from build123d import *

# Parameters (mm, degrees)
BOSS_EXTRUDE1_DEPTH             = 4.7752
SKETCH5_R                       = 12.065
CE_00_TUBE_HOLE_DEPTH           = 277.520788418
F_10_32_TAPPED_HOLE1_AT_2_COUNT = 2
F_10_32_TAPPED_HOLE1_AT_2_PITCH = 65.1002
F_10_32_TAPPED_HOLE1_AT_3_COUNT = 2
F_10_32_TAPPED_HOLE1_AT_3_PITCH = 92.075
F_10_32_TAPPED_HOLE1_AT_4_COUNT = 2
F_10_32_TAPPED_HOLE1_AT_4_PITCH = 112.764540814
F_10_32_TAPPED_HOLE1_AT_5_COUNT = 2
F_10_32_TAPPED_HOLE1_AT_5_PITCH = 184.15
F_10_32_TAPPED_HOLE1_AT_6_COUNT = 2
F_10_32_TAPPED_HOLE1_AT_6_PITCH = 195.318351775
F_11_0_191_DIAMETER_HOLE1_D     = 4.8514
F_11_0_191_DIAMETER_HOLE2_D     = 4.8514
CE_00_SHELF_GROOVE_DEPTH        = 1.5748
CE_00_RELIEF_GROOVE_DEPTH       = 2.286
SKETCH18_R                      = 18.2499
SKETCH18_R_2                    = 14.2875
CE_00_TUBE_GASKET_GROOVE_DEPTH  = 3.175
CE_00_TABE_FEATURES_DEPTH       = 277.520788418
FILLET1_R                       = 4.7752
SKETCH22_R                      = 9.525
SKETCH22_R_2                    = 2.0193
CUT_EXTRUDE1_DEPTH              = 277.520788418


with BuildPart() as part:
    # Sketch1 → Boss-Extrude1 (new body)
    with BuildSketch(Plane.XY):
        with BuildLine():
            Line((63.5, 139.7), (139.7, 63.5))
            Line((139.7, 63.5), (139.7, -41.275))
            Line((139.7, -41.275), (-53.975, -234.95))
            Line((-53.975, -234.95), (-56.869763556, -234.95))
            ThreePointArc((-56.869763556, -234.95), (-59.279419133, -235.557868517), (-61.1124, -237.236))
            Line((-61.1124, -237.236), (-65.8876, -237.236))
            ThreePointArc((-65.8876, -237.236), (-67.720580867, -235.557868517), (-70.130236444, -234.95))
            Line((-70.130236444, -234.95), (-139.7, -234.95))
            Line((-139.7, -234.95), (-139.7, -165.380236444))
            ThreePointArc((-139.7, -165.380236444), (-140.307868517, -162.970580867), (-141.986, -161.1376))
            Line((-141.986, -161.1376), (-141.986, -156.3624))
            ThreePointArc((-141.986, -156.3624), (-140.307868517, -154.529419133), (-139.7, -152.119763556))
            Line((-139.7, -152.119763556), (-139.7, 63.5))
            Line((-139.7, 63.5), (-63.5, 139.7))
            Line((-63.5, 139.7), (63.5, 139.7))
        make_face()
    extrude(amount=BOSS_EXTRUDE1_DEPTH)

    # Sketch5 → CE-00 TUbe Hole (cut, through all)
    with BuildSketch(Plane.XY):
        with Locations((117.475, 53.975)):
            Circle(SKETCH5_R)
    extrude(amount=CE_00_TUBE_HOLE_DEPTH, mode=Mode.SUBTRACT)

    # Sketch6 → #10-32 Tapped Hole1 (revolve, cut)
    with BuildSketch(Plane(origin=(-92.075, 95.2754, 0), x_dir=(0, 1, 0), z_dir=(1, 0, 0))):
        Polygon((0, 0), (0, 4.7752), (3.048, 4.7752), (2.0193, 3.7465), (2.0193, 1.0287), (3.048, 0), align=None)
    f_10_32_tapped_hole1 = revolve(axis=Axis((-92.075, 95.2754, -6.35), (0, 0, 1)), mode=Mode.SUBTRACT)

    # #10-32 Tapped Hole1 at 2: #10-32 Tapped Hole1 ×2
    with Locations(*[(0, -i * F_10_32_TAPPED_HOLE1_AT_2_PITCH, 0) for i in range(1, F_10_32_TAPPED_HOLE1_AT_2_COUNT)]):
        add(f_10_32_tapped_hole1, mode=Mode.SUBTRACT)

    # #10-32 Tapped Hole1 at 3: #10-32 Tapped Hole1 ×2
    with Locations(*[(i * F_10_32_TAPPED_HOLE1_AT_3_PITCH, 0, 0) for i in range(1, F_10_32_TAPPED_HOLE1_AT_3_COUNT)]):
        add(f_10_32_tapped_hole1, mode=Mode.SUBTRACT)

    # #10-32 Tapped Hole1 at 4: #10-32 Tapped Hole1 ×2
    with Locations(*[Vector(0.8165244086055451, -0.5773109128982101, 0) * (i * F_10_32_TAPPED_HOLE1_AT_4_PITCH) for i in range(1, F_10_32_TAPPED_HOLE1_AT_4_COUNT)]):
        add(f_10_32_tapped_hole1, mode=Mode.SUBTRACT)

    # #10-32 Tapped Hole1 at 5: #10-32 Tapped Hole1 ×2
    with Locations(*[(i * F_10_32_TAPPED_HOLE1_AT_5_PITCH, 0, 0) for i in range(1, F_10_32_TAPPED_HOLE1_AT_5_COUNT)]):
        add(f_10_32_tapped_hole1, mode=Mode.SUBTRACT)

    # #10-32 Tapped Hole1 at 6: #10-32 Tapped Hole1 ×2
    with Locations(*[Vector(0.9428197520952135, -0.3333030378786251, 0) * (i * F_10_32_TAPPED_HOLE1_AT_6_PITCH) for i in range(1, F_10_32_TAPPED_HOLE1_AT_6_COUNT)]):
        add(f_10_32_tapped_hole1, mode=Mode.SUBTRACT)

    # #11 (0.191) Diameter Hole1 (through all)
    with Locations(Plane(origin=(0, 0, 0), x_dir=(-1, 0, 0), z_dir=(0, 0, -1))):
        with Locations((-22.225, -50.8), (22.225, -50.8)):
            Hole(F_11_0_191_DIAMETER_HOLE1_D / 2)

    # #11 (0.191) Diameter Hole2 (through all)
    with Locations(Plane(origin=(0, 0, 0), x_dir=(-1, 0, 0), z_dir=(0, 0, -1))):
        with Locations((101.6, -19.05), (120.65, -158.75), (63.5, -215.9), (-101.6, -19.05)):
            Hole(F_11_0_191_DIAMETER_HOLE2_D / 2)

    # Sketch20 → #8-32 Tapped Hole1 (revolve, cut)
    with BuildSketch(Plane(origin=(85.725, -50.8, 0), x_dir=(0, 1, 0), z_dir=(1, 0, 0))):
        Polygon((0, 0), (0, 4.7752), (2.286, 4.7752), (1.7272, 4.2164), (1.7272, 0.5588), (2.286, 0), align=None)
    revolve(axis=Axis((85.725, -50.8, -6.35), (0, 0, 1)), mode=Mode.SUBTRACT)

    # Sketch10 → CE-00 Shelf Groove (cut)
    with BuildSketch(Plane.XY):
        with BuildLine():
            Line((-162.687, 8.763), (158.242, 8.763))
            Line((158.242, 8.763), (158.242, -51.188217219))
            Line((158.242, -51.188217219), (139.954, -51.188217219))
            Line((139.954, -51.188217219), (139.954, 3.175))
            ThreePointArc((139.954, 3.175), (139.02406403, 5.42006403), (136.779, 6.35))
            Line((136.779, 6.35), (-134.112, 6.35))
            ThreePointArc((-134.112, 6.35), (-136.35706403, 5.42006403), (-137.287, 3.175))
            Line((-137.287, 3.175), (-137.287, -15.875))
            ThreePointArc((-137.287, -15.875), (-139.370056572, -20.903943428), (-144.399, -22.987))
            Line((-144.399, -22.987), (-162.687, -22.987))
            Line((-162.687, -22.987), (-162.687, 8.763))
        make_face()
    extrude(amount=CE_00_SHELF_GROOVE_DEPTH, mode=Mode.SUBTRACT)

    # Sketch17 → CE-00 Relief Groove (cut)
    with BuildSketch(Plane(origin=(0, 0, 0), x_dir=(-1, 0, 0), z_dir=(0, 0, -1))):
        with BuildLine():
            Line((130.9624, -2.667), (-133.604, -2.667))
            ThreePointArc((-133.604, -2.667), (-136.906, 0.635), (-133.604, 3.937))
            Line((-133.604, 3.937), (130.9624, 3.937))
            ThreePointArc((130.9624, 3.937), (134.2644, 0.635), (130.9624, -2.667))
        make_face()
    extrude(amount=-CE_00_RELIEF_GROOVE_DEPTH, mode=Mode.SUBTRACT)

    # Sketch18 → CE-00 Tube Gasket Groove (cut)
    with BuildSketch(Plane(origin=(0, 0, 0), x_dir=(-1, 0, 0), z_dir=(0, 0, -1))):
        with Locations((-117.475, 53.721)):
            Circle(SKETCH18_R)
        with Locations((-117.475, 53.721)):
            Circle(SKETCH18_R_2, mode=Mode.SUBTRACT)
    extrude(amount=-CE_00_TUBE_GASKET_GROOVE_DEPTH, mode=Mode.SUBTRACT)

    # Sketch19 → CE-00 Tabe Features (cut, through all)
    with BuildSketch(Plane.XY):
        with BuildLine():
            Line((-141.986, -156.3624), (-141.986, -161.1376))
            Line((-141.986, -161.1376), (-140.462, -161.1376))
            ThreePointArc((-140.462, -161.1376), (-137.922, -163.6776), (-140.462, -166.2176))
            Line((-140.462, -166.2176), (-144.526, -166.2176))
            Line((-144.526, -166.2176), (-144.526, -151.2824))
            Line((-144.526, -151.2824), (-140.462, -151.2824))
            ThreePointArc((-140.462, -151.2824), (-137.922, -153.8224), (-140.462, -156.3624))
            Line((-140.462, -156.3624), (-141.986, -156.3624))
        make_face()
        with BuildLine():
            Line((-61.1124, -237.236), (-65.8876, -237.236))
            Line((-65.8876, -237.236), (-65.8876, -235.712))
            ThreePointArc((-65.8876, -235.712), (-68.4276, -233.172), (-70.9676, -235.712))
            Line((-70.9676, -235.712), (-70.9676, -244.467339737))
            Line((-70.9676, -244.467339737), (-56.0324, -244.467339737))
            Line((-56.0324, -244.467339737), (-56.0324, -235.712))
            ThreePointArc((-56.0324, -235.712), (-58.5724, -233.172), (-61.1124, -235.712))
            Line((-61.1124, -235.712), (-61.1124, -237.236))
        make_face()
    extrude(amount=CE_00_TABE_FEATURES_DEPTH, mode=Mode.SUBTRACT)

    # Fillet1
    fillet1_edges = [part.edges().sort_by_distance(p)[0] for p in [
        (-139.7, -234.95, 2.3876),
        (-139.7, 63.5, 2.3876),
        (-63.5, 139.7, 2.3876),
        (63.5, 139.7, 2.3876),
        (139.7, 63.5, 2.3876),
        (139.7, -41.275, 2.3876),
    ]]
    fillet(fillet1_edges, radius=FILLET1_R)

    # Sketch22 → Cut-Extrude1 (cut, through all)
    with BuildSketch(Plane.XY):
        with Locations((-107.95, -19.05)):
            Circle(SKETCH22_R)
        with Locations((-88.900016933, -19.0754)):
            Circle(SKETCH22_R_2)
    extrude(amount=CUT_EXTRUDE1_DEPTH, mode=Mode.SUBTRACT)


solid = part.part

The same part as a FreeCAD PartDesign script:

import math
import FreeCAD as App
import Part
import Sketcher

V = App.Vector
Q = App.Units.Quantity


def edges_at(feature, points):
    """Names of the edges that pass closest to the given points."""
    edges = feature.Shape.Edges
    near = lambda p: min(range(len(edges)), key=lambda i: edges[i].distToShape(Part.Vertex(*p))[0])
    return sorted({f"Edge{near(p) + 1}" for p in points})


def add_polygon(sketch, points):
    """Adds a closed chain of lines whose ends are joined by coincident constraints."""
    first, n = sketch.GeometryCount, len(points)
    for a, b in zip(points, points[1:] + points[:1]):
        sketch.addGeometry(Part.LineSegment(App.Vector(*a, 0), App.Vector(*b, 0)), False)
    for i in range(n):
        sketch.addConstraint(Sketcher.Constraint("Coincident", first + i, 2, first + (i + 1) % n, 1))

doc = App.newDocument("Part")
body = doc.addObject("PartDesign::Body", "Body")

sketch1 = body.newObject("Sketcher::SketchObject", "Sketch")
sketch1.AttachmentSupport = (doc.getObject("XY_Plane"), [""])
sketch1.MapMode = "FlatFace"
sketch1.addGeometry(Part.LineSegment(V(139.7, 63.5, 0), V(63.5, 139.7, 0)), False)
sketch1.addGeometry(Part.LineSegment(V(63.5, 139.7, 0), V(-63.5, 139.7, 0)), False)
sketch1.addGeometry(Part.LineSegment(V(-63.5, 139.7, 0), V(-139.7, 63.5, 0)), False)
sketch1.addGeometry(Part.LineSegment(V(-139.7, 63.5, 0), V(-139.7, -152.119764, 0)), False)
sketch1.addGeometry(Part.ArcOfCircle(Part.Circle(V(-144.78, -152.119764, 0), V(0, 0, 1), 5.08), math.radians(-56.632987), math.radians(0)), False)
sketch1.addGeometry(Part.LineSegment(V(-141.986, -156.3624, 0), V(-141.986, -161.1376, 0)), False)
sketch1.addGeometry(Part.ArcOfCircle(Part.Circle(V(-144.78, -165.380236, 0), V(0, 0, 1), 5.08), math.radians(0), math.radians(56.632987)), False)
sketch1.addGeometry(Part.LineSegment(V(-139.7, -165.380236, 0), V(-139.7, -234.95, 0)), False)
sketch1.addGeometry(Part.LineSegment(V(-139.7, -234.95, 0), V(-70.130236, -234.95, 0)), False)
sketch1.addGeometry(Part.ArcOfCircle(Part.Circle(V(-70.130236, -240.03, 0), V(0, 0, 1), 5.08), math.radians(33.367013), math.radians(90)), False)
sketch1.addGeometry(Part.LineSegment(V(-65.8876, -237.236, 0), V(-61.1124, -237.236, 0)), False)
sketch1.addGeometry(Part.ArcOfCircle(Part.Circle(V(-56.869764, -240.03, 0), V(0, 0, 1), 5.08), math.radians(90), math.radians(146.632987)), False)
sketch1.addGeometry(Part.LineSegment(V(-56.869764, -234.95, 0), V(-53.975, -234.95, 0)), False)
sketch1.addGeometry(Part.LineSegment(V(-53.975, -234.95, 0), V(139.7, -41.275, 0)), False)
sketch1.addGeometry(Part.LineSegment(V(139.7, -41.275, 0), V(139.7, 63.5, 0)), False)
sketch1.addConstraint(Sketcher.Constraint("Coincident", 0, 2, 1, 1))
sketch1.addConstraint(Sketcher.Constraint("Coincident", 1, 2, 2, 1))
sketch1.addConstraint(Sketcher.Constraint("Coincident", 2, 2, 3, 1))
sketch1.addConstraint(Sketcher.Constraint("Tangent", 3, 2, 4, 2))
sketch1.addConstraint(Sketcher.Constraint("Coincident", 4, 1, 5, 1))
sketch1.addConstraint(Sketcher.Constraint("Coincident", 5, 2, 6, 2))
sketch1.addConstraint(Sketcher.Constraint("Tangent", 6, 1, 7, 1))
sketch1.addConstraint(Sketcher.Constraint("Coincident", 7, 2, 8, 1))
sketch1.addConstraint(Sketcher.Constraint("Tangent", 8, 2, 9, 2))
sketch1.addConstraint(Sketcher.Constraint("Coincident", 9, 1, 10, 1))
sketch1.addConstraint(Sketcher.Constraint("Coincident", 10, 2, 11, 2))
sketch1.addConstraint(Sketcher.Constraint("Tangent", 11, 1, 12, 1))
sketch1.addConstraint(Sketcher.Constraint("Coincident", 12, 2, 13, 1))
sketch1.addConstraint(Sketcher.Constraint("Coincident", 13, 2, 14, 1))
sketch1.addConstraint(Sketcher.Constraint("Coincident", 14, 2, 0, 1))
sketch1.addConstraint(Sketcher.Constraint("Horizontal", 1))
sketch1.addConstraint(Sketcher.Constraint("Vertical", 3))
sketch1.addConstraint(Sketcher.Constraint("Vertical", 5))
sketch1.addConstraint(Sketcher.Constraint("Vertical", 7))
sketch1.addConstraint(Sketcher.Constraint("Horizontal", 8))
sketch1.addConstraint(Sketcher.Constraint("Horizontal", 10))
sketch1.addConstraint(Sketcher.Constraint("Horizontal", 12))
sketch1.addConstraint(Sketcher.Constraint("Vertical", 14))
sketch1.addConstraint(Sketcher.Constraint("Equal", 4, 6))
sketch1.addConstraint(Sketcher.Constraint("Equal", 6, 9))
sketch1.addConstraint(Sketcher.Constraint("Equal", 9, 11))
sketch1.addConstraint(Sketcher.Constraint("Symmetric", 2, 2, 14, 2, -2))
sketch1.addConstraint(Sketcher.Constraint("Perpendicular", 0, 2))
sketch1.addConstraint(Sketcher.Constraint("Parallel", 2, 13))
sketch1.addConstraint(Sketcher.Constraint("Horizontal", 9, 3, 11, 3))
sketch1.addConstraint(Sketcher.Constraint("Vertical", 4, 3, 6, 3))
sketch1.addConstraint(Sketcher.Constraint("Equal", 10, 5))
sketch1.addConstraint(Sketcher.Constraint("Equal", 8, 7))
sketch1.addConstraint(Sketcher.Constraint("Equal", 0, 2))
sketch1.addConstraint(Sketcher.Constraint("Radius", 4, Q("0.2 in")))
sketch1.addConstraint(Sketcher.Constraint("DistanceX", 1, 2, 1, 1, Q("5 in")))
sketch1.addConstraint(Sketcher.Constraint("DistanceX", 2, 2, 1, 2, Q("3 in")))
sketch1.addConstraint(Sketcher.Constraint("DistanceY", -1, 1, 0, 2, Q("5.5 in")))
sketch1.addConstraint(Sketcher.Constraint("DistanceX", 10, 1, 10, 2, Q("0.188 in")))
sketch1.addConstraint(Sketcher.Constraint("DistanceY", 14, 1, 14, 2, Q("4.125 in")))
sketch1.addConstraint(Sketcher.Constraint("DistanceY", 9, 3, -1, 1, Q("9.45 in")))
sketch1.addConstraint(Sketcher.Constraint("DistanceX", 4, 1, -1, 1, Q("5.59 in")))
sketch1.addConstraint(Sketcher.Constraint("DistanceY", 9, 1, -1, 1, Q("9.34 in")))
sketch1.addConstraint(Sketcher.Constraint("DistanceY", 4, 1, -1, 1, Q("6.156 in")))
pad1 = body.newObject("PartDesign::Pad", "Pad")
pad1.Profile = sketch1
pad1.Length = Q("0.188 in")

sketch2 = body.newObject("Sketcher::SketchObject", "Sketch001")
sketch2.AttachmentSupport = (doc.getObject("XY_Plane"), [""])
sketch2.MapMode = "FlatFace"
sketch2.addGeometry(Part.Circle(V(117.475, 53.975, 0), V(0, 0, 1), 12.065), False)
sketch2.addConstraint(Sketcher.Constraint("Diameter", 0, Q("0.95 in")))
sketch2.addConstraint(Sketcher.Constraint("DistanceX", -1, 1, 0, 3, Q("4.625 in")))
sketch2.addConstraint(Sketcher.Constraint("DistanceY", -1, 1, 0, 3, Q("2.125 in")))
pocket1 = body.newObject("PartDesign::Pocket", "Pocket")
pocket1.Profile = sketch2
pocket1.Type = "ThroughAll"
pocket1.Reversed = True

sketch3 = body.newObject("Sketcher::SketchObject", "Sketch002")
sketch3.AttachmentSupport = (doc.getObject("YZ_Plane"), [""])
sketch3.MapMode = "FlatFace"
sketch3.AttachmentOffset = App.Placement(V(0, 0, -3.625 * 25.4), App.Rotation())
add_polygon(sketch3, [(95.2754, 4.7752), (95.2754, 0), (98.3234, 0), (97.2947, 1.0287), (97.2947, 3.7465), (98.3234, 4.7752)])
sketch3.addGeometry(Part.LineSegment(V(95.2754, 0, 0), V(95.2754, 4.7752, 0)), True)
sketch3.addConstraint(Sketcher.Constraint("Vertical", 0))
sketch3.addConstraint(Sketcher.Constraint("Horizontal", 1))
sketch3.addConstraint(Sketcher.Constraint("Vertical", 3))
sketch3.addConstraint(Sketcher.Constraint("Horizontal", 5))
sketch3.addConstraint(Sketcher.Constraint("Vertical", 6))
sketch3.addConstraint(Sketcher.Constraint("Coincident", 6, 1, 0, 2))
sketch3.addConstraint(Sketcher.Constraint("PointOnObject", 0, 2, -1))
sketch3.addConstraint(Sketcher.Constraint("Perpendicular", 2, 4))
sketch3.addConstraint(Sketcher.Constraint("Horizontal", 4, 2, 6, 2))
sketch3.addConstraint(Sketcher.Constraint("Vertical", 1, 2, 4, 2))
sketch3.addConstraint(Sketcher.Constraint("Equal", 2, 4))
sketch3.addConstraint(Sketcher.Constraint("DistanceX", 1, 1, 1, 2, Q("0.12 in")))
sketch3.addConstraint(Sketcher.Constraint("DistanceY", 0, 2, 0, 1, Q("0.188 in")))
sketch3.addConstraint(Sketcher.Constraint("DistanceY", 3, 1, 3, 2, Q("0.107 in")))
sketch3.addConstraint(Sketcher.Constraint("DistanceX", -1, 1, 0, 2, Q("3.751 in")))
groove = body.newObject("PartDesign::Groove", "Groove")
groove.Profile = sketch3
groove.ReferenceAxis = (sketch3, ["Axis0"])
groove.Angle = 360
doc.recompute()

linearpattern = body.newObject("PartDesign::LinearPattern", "LinearPattern")
linearpattern.Originals = [groove]
linearpattern.Direction = (doc.getObject("Y_Axis"), [""])
linearpattern.Mode = "offset"
linearpattern.Offset = Q("2.563 in")
linearpattern.Occurrences = 2
linearpattern.Reversed = True
body.Tip = linearpattern
doc.recompute()

linearpattern2 = body.newObject("PartDesign::LinearPattern", "LinearPattern001")
linearpattern2.Originals = [groove]
linearpattern2.Direction = (doc.getObject("X_Axis"), [""])
linearpattern2.Mode = "offset"
linearpattern2.Offset = Q("3.625 in")
linearpattern2.Occurrences = 2
body.Tip = linearpattern2
doc.recompute()

datumline = body.newObject("PartDesign::Line", "DatumLine")
datumline.Placement = App.Placement(V(0, 0, 0), App.Rotation(V(0, 0, 1), V(0.816524409, -0.577310913, 0)))
linearpattern3 = body.newObject("PartDesign::LinearPattern", "LinearPattern002")
linearpattern3.Originals = [groove]
linearpattern3.Direction = (datumline, [""])
linearpattern3.Mode = "offset"
linearpattern3.Offset = 112.764541
linearpattern3.Occurrences = 2
body.Tip = linearpattern3
doc.recompute()

linearpattern4 = body.newObject("PartDesign::LinearPattern", "LinearPattern003")
linearpattern4.Originals = [groove]
linearpattern4.Direction = (doc.getObject("X_Axis"), [""])
linearpattern4.Mode = "offset"
linearpattern4.Offset = Q("7.25 in")
linearpattern4.Occurrences = 2
body.Tip = linearpattern4
doc.recompute()

datumline2 = body.newObject("PartDesign::Line", "DatumLine001")
datumline2.Placement = App.Placement(V(0, 0, 0), App.Rotation(V(0, 0, 1), V(0.942819752, -0.333303038, 0)))
linearpattern5 = body.newObject("PartDesign::LinearPattern", "LinearPattern004")
linearpattern5.Originals = [groove]
linearpattern5.Direction = (datumline2, [""])
linearpattern5.Mode = "offset"
linearpattern5.Offset = 195.318352
linearpattern5.Occurrences = 2
body.Tip = linearpattern5

sketch4 = body.newObject("Sketcher::SketchObject", "Sketch003")
sketch4.AttachmentSupport = (doc.getObject("XY_Plane"), [""])
sketch4.MapMode = "FlatFace"
sketch4.addGeometry(Part.Circle(V(22.225, -50.8, 0), V(0, 0, 1), 2.4257), False)
sketch4.addGeometry(Part.Circle(V(-22.225, -50.8, 0), V(0, 0, 1), 2.4257), False)
sketch4.addConstraint(Sketcher.Constraint("Equal", 0, 1))
sketch4.addConstraint(Sketcher.Constraint("Symmetric", 0, 3, 1, 3, -2))
sketch4.addConstraint(Sketcher.Constraint("Diameter", 0, Q("0.191 in")))
sketch4.addConstraint(Sketcher.Constraint("DistanceY", 0, 3, -1, 1, Q("2 in")))
sketch4.addConstraint(Sketcher.Constraint("DistanceX", 1, 3, 0, 3, Q("1.75 in")))
doc.recompute()
hole = body.newObject("PartDesign::Hole", "Hole")
hole.Profile = sketch4
hole.ThreadType = "None"
hole.Diameter = Q("0.191 in")
hole.DepthType = "ThroughAll"
hole.Reversed = True

sketch5 = body.newObject("Sketcher::SketchObject", "Sketch004")
sketch5.AttachmentSupport = (doc.getObject("XY_Plane"), [""])
sketch5.MapMode = "FlatFace"
sketch5.addGeometry(Part.Circle(V(-101.6, -19.05, 0), V(0, 0, 1), 2.4257), False)
sketch5.addGeometry(Part.Circle(V(-120.65, -158.75, 0), V(0, 0, 1), 2.4257), False)
sketch5.addGeometry(Part.Circle(V(-63.5, -215.9, 0), V(0, 0, 1), 2.4257), False)
sketch5.addGeometry(Part.Circle(V(101.6, -19.05, 0), V(0, 0, 1), 2.4257), False)
sketch5.addConstraint(Sketcher.Constraint("Equal", 0, 1))
sketch5.addConstraint(Sketcher.Constraint("Equal", 1, 2))
sketch5.addConstraint(Sketcher.Constraint("Equal", 2, 3))
sketch5.addConstraint(Sketcher.Constraint("Symmetric", 0, 3, 3, 3, -2))
sketch5.addConstraint(Sketcher.Constraint("Diameter", 0, Q("0.191 in")))
sketch5.addConstraint(Sketcher.Constraint("DistanceX", 0, 3, -1, 1, Q("4 in")))
sketch5.addConstraint(Sketcher.Constraint("DistanceX", 2, 3, -1, 1, Q("2.5 in")))
sketch5.addConstraint(Sketcher.Constraint("DistanceY", 2, 3, -1, 1, Q("8.5 in")))
sketch5.addConstraint(Sketcher.Constraint("DistanceY", 1, 3, 0, 3, Q("5.5 in")))
sketch5.addConstraint(Sketcher.Constraint("DistanceY", 0, 3, -1, 1, Q("0.75 in")))
sketch5.addConstraint(Sketcher.Constraint("DistanceX", 1, 3, -1, 1, Q("4.75 in")))
doc.recompute()
hole2 = body.newObject("PartDesign::Hole", "Hole001")
hole2.Profile = sketch5
hole2.ThreadType = "None"
hole2.Diameter = Q("0.191 in")
hole2.DepthType = "ThroughAll"
hole2.Reversed = True

sketch6 = body.newObject("Sketcher::SketchObject", "Sketch005")
sketch6.AttachmentSupport = (doc.getObject("YZ_Plane"), [""])
sketch6.MapMode = "FlatFace"
sketch6.AttachmentOffset = App.Placement(V(0, 0, 3.375 * 25.4), App.Rotation())
add_polygon(sketch6, [(-50.8, 4.7752), (-50.8, 0), (-48.514, 0), (-49.0728, 0.5588), (-49.0728, 4.2164), (-48.514, 4.7752)])
sketch6.addGeometry(Part.LineSegment(V(-50.8, 0, 0), V(-50.8, 4.7752, 0)), True)
sketch6.addConstraint(Sketcher.Constraint("Vertical", 0))
sketch6.addConstraint(Sketcher.Constraint("Horizontal", 1))
sketch6.addConstraint(Sketcher.Constraint("Vertical", 3))
sketch6.addConstraint(Sketcher.Constraint("Horizontal", 5))
sketch6.addConstraint(Sketcher.Constraint("Vertical", 6))
sketch6.addConstraint(Sketcher.Constraint("Coincident", 6, 1, 0, 2))
sketch6.addConstraint(Sketcher.Constraint("PointOnObject", 0, 2, -1))
sketch6.addConstraint(Sketcher.Constraint("Perpendicular", 2, 4))
sketch6.addConstraint(Sketcher.Constraint("Horizontal", 4, 2, 6, 2))
sketch6.addConstraint(Sketcher.Constraint("Vertical", 1, 2, 4, 2))
sketch6.addConstraint(Sketcher.Constraint("Equal", 2, 4))
sketch6.addConstraint(Sketcher.Constraint("DistanceX", 0, 2, -1, 1, Q("2 in")))
sketch6.addConstraint(Sketcher.Constraint("DistanceX", 1, 1, 1, 2, Q("0.09 in")))
sketch6.addConstraint(Sketcher.Constraint("DistanceY", 0, 2, 0, 1, Q("0.188 in")))
sketch6.addConstraint(Sketcher.Constraint("DistanceY", 3, 1, 3, 2, Q("0.144 in")))
groove2 = body.newObject("PartDesign::Groove", "Groove001")
groove2.Profile = sketch6
groove2.ReferenceAxis = (sketch6, ["Axis0"])
groove2.Angle = 360

sketch7 = body.newObject("Sketcher::SketchObject", "Sketch006")
sketch7.AttachmentSupport = (doc.getObject("XY_Plane"), [""])
sketch7.MapMode = "FlatFace"
sketch7.addGeometry(Part.LineSegment(V(158.242, 8.763, 0), V(-162.687, 8.763, 0)), False)
sketch7.addGeometry(Part.LineSegment(V(-162.687, 8.763, 0), V(-162.687, -22.987, 0)), False)
sketch7.addGeometry(Part.LineSegment(V(-162.687, -22.987, 0), V(-144.399, -22.987, 0)), False)
sketch7.addGeometry(Part.ArcOfCircle(Part.Circle(V(-144.399, -15.875, 0), V(0, 0, 1), 7.112), math.radians(-90), math.radians(0)), False)
sketch7.addGeometry(Part.LineSegment(V(-137.287, -15.875, 0), V(-137.287, 3.175, 0)), False)
sketch7.addGeometry(Part.ArcOfCircle(Part.Circle(V(-134.112, 3.175, 0), V(0, 0, 1), 3.175), math.radians(90), math.radians(180)), False)
sketch7.addGeometry(Part.LineSegment(V(-134.112, 6.35, 0), V(136.779, 6.35, 0)), False)
sketch7.addGeometry(Part.ArcOfCircle(Part.Circle(V(136.779, 3.175, 0), V(0, 0, 1), 3.175), math.radians(0), math.radians(90)), False)
sketch7.addGeometry(Part.LineSegment(V(139.954, 3.175, 0), V(139.954, -51.188217, 0)), False)
sketch7.addGeometry(Part.LineSegment(V(139.954, -51.188217, 0), V(158.242, -51.188217, 0)), False)
sketch7.addGeometry(Part.LineSegment(V(158.242, -51.188217, 0), V(158.242, 8.763, 0)), False)
sketch7.addConstraint(Sketcher.Constraint("Coincident", 0, 2, 1, 1))
sketch7.addConstraint(Sketcher.Constraint("Coincident", 1, 2, 2, 1))
sketch7.addConstraint(Sketcher.Constraint("Tangent", 2, 2, 3, 1))
sketch7.addConstraint(Sketcher.Constraint("Tangent", 3, 2, 4, 1))
sketch7.addConstraint(Sketcher.Constraint("Tangent", 4, 2, 5, 2))
sketch7.addConstraint(Sketcher.Constraint("Tangent", 5, 1, 6, 1))
sketch7.addConstraint(Sketcher.Constraint("Tangent", 6, 2, 7, 2))
sketch7.addConstraint(Sketcher.Constraint("Tangent", 7, 1, 8, 1))
sketch7.addConstraint(Sketcher.Constraint("Coincident", 8, 2, 9, 1))
sketch7.addConstraint(Sketcher.Constraint("Coincident", 9, 2, 10, 1))
sketch7.addConstraint(Sketcher.Constraint("Coincident", 10, 2, 0, 1))
sketch7.addConstraint(Sketcher.Constraint("Horizontal", 0))
sketch7.addConstraint(Sketcher.Constraint("Vertical", 1))
sketch7.addConstraint(Sketcher.Constraint("Horizontal", 2))
sketch7.addConstraint(Sketcher.Constraint("Vertical", 4))
sketch7.addConstraint(Sketcher.Constraint("Horizontal", 6))
sketch7.addConstraint(Sketcher.Constraint("Vertical", 8))
sketch7.addConstraint(Sketcher.Constraint("Horizontal", 9))
sketch7.addConstraint(Sketcher.Constraint("Vertical", 10))
sketch7.addConstraint(Sketcher.Constraint("Equal", 5, 7))
sketch7.addConstraint(Sketcher.Constraint("Equal", 2, 9))
sketch7.addConstraint(Sketcher.Constraint("Radius", 3, Q("0.28 in")))
sketch7.addConstraint(Sketcher.Constraint("Radius", 5, Q("0.125 in")))
sketch7.addConstraint(Sketcher.Constraint("DistanceX", 1, 2, 3, 2, Q("1 in")))
sketch7.addConstraint(Sketcher.Constraint("DistanceY", 1, 2, 1, 1, Q("1.25 in")))
sketch7.addConstraint(Sketcher.Constraint("DistanceY", 4, 1, 4, 2, Q("0.75 in")))
sketch7.addConstraint(Sketcher.Constraint("DistanceX", 0, 2, 0, 1, Q("12.635 in")))
sketch7.addConstraint(Sketcher.Constraint("DistanceX", 5, 3, -1, 1, Q("5.28 in")))
sketch7.addConstraint(Sketcher.Constraint("DistanceY", -1, 1, 5, 1, Q("0.25 in")))
sketch7.addConstraint(Sketcher.Constraint("DistanceY", 8, 2, 8, 1, Q("54.363217 mm")))
pocket2 = body.newObject("PartDesign::Pocket", "Pocket001")
pocket2.Profile = sketch7
pocket2.Length = Q("0.062 in")
pocket2.Reversed = True

sketch8 = body.newObject("Sketcher::SketchObject", "Sketch007")
sketch8.AttachmentSupport = (doc.getObject("XY_Plane"), [""])
sketch8.MapMode = "FlatFace"
sketch8.addGeometry(Part.LineSegment(V(133.604, -2.667, 0), V(-130.9624, -2.667, 0)), False)
sketch8.addGeometry(Part.ArcOfCircle(Part.Circle(V(-130.9624, 0.635, 0), V(0, 0, 1), 3.302), math.radians(90), math.radians(270)), False)
sketch8.addGeometry(Part.LineSegment(V(-130.9624, 3.937, 0), V(133.604, 3.937, 0)), False)
sketch8.addGeometry(Part.ArcOfCircle(Part.Circle(V(133.604, 0.635, 0), V(0, 0, 1), 3.302), math.radians(-90), math.radians(90)), False)
sketch8.addConstraint(Sketcher.Constraint("Tangent", 0, 2, 1, 2))
sketch8.addConstraint(Sketcher.Constraint("Tangent", 1, 1, 2, 1))
sketch8.addConstraint(Sketcher.Constraint("Tangent", 2, 2, 3, 2))
sketch8.addConstraint(Sketcher.Constraint("Tangent", 3, 1, 0, 1))
sketch8.addConstraint(Sketcher.Constraint("Horizontal", 0))
sketch8.addConstraint(Sketcher.Constraint("Horizontal", 2))
sketch8.addConstraint(Sketcher.Constraint("Radius", 1, Q("0.13 in")))
sketch8.addConstraint(Sketcher.Constraint("DistanceX", 0, 2, 0, 1, Q("10.416 in")))
sketch8.addConstraint(Sketcher.Constraint("DistanceX", -1, 1, 3, 3, Q("5.26 in")))
sketch8.addConstraint(Sketcher.Constraint("DistanceY", -1, 1, 1, 3, Q("0.025 in")))
pocket3 = body.newObject("PartDesign::Pocket", "Pocket002")
pocket3.Profile = sketch8
pocket3.Length = Q("0.09 in")
pocket3.Reversed = True

sketch9 = body.newObject("Sketcher::SketchObject", "Sketch008")
sketch9.AttachmentSupport = (doc.getObject("XY_Plane"), [""])
sketch9.MapMode = "FlatFace"
sketch9.addGeometry(Part.Circle(V(117.475, 53.721, 0), V(0, 0, 1), 18.2499), False)
sketch9.addGeometry(Part.Circle(V(117.475, 53.721, 0), V(0, 0, 1), 14.2875), False)
sketch9.addConstraint(Sketcher.Constraint("Coincident", 1, 3, 0, 3))
sketch9.addConstraint(Sketcher.Constraint("Diameter", 0, Q("1.437 in")))
sketch9.addConstraint(Sketcher.Constraint("Diameter", 1, Q("1.125 in")))
sketch9.addConstraint(Sketcher.Constraint("DistanceX", -1, 1, 0, 3, Q("4.625 in")))
sketch9.addConstraint(Sketcher.Constraint("DistanceY", -1, 1, 0, 3, Q("2.115 in")))
pocket4 = body.newObject("PartDesign::Pocket", "Pocket003")
pocket4.Profile = sketch9
pocket4.Length = Q("0.125 in")
pocket4.Reversed = True

sketch10 = body.newObject("Sketcher::SketchObject", "Sketch009")
sketch10.AttachmentSupport = (doc.getObject("XY_Plane"), [""])
sketch10.MapMode = "FlatFace"
sketch10.addGeometry(Part.LineSegment(V(-141.986, -161.1376, 0), V(-141.986, -156.3624, 0)), False)
sketch10.addGeometry(Part.LineSegment(V(-141.986, -156.3624, 0), V(-140.462, -156.3624, 0)), False)
sketch10.addGeometry(Part.ArcOfCircle(Part.Circle(V(-140.462, -153.8224, 0), V(0, 0, 1), 2.54), math.radians(-90), math.radians(90)), False)
sketch10.addGeometry(Part.LineSegment(V(-140.462, -151.2824, 0), V(-144.526, -151.2824, 0)), False)
sketch10.addGeometry(Part.LineSegment(V(-144.526, -151.2824, 0), V(-144.526, -166.2176, 0)), False)
sketch10.addGeometry(Part.LineSegment(V(-144.526, -166.2176, 0), V(-140.462, -166.2176, 0)), False)
sketch10.addGeometry(Part.ArcOfCircle(Part.Circle(V(-140.462, -163.6776, 0), V(0, 0, 1), 2.54), math.radians(-90), math.radians(90)), False)
sketch10.addGeometry(Part.LineSegment(V(-140.462, -161.1376, 0), V(-141.986, -161.1376, 0)), False)
sketch10.addGeometry(Part.LineSegment(V(-61.1124, -237.236, 0), V(-65.8876, -237.236, 0)), False)
sketch10.addGeometry(Part.LineSegment(V(-65.8876, -237.236, 0), V(-65.8876, -235.712, 0)), False)
sketch10.addGeometry(Part.ArcOfCircle(Part.Circle(V(-68.4276, -235.712, 0), V(0, 0, 1), 2.54), math.radians(0), math.radians(180)), False)
sketch10.addGeometry(Part.LineSegment(V(-70.9676, -235.712, 0), V(-70.9676, -244.46734, 0)), False)
sketch10.addGeometry(Part.LineSegment(V(-70.9676, -244.46734, 0), V(-56.0324, -244.46734, 0)), False)
sketch10.addGeometry(Part.LineSegment(V(-56.0324, -244.46734, 0), V(-56.0324, -235.712, 0)), False)
sketch10.addGeometry(Part.ArcOfCircle(Part.Circle(V(-58.5724, -235.712, 0), V(0, 0, 1), 2.54), math.radians(0), math.radians(180)), False)
sketch10.addGeometry(Part.LineSegment(V(-61.1124, -235.712, 0), V(-61.1124, -237.236, 0)), False)
sketch10.addConstraint(Sketcher.Constraint("Coincident", 0, 2, 1, 1))
sketch10.addConstraint(Sketcher.Constraint("Tangent", 1, 2, 2, 1))
sketch10.addConstraint(Sketcher.Constraint("Tangent", 2, 2, 3, 1))
sketch10.addConstraint(Sketcher.Constraint("Coincident", 3, 2, 4, 1))
sketch10.addConstraint(Sketcher.Constraint("Coincident", 4, 2, 5, 1))
sketch10.addConstraint(Sketcher.Constraint("Tangent", 5, 2, 6, 1))
sketch10.addConstraint(Sketcher.Constraint("Tangent", 6, 2, 7, 1))
sketch10.addConstraint(Sketcher.Constraint("Coincident", 7, 2, 0, 1))
sketch10.addConstraint(Sketcher.Constraint("Coincident", 8, 2, 9, 1))
sketch10.addConstraint(Sketcher.Constraint("Tangent", 9, 2, 10, 1))
sketch10.addConstraint(Sketcher.Constraint("Tangent", 10, 2, 11, 1))
sketch10.addConstraint(Sketcher.Constraint("Coincident", 11, 2, 12, 1))
sketch10.addConstraint(Sketcher.Constraint("Coincident", 12, 2, 13, 1))
sketch10.addConstraint(Sketcher.Constraint("Tangent", 13, 2, 14, 1))
sketch10.addConstraint(Sketcher.Constraint("Tangent", 14, 2, 15, 1))
sketch10.addConstraint(Sketcher.Constraint("Coincident", 15, 2, 8, 1))
sketch10.addConstraint(Sketcher.Constraint("Vertical", 0))
sketch10.addConstraint(Sketcher.Constraint("Horizontal", 1))
sketch10.addConstraint(Sketcher.Constraint("Horizontal", 3))
sketch10.addConstraint(Sketcher.Constraint("Vertical", 4))
sketch10.addConstraint(Sketcher.Constraint("Horizontal", 5))
sketch10.addConstraint(Sketcher.Constraint("Horizontal", 7))
sketch10.addConstraint(Sketcher.Constraint("Horizontal", 8))
sketch10.addConstraint(Sketcher.Constraint("Vertical", 9))
sketch10.addConstraint(Sketcher.Constraint("Vertical", 11))
sketch10.addConstraint(Sketcher.Constraint("Horizontal", 12))
sketch10.addConstraint(Sketcher.Constraint("Vertical", 13))
sketch10.addConstraint(Sketcher.Constraint("Vertical", 15))
sketch10.addConstraint(Sketcher.Constraint("Equal", 2, 6))
sketch10.addConstraint(Sketcher.Constraint("Equal", 6, 10))
sketch10.addConstraint(Sketcher.Constraint("Equal", 10, 14))
sketch10.addConstraint(Sketcher.Constraint("Horizontal", 10, 3, 14, 3))
sketch10.addConstraint(Sketcher.Constraint("Vertical", 2, 3, 6, 3))
sketch10.addConstraint(Sketcher.Constraint("Equal", 8, 0))
sketch10.addConstraint(Sketcher.Constraint("Equal", 7, 9))
sketch10.addConstraint(Sketcher.Constraint("Radius", 2, Q("0.1 in")))
sketch10.addConstraint(Sketcher.Constraint("DistanceX", 1, 1, 1, 2, Q("0.06 in")))
sketch10.addConstraint(Sketcher.Constraint("DistanceX", 3, 2, 3, 1, Q("0.16 in")))
sketch10.addConstraint(Sketcher.Constraint("DistanceX", 8, 2, 8, 1, Q("0.188 in")))
sketch10.addConstraint(Sketcher.Constraint("DistanceX", 2, 3, -1, 1, Q("5.53 in")))
sketch10.addConstraint(Sketcher.Constraint("DistanceY", 10, 3, -1, 1, Q("9.28 in")))
sketch10.addConstraint(Sketcher.Constraint("DistanceY", 2, 3, -1, 1, Q("6.056 in")))
sketch10.addConstraint(Sketcher.Constraint("DistanceX", 10, 3, -1, 1, Q("2.694 in")))
sketch10.addConstraint(Sketcher.Constraint("DistanceY", 11, 2, 11, 1, Q("8.75534 mm")))
pocket5 = body.newObject("PartDesign::Pocket", "Pocket004")
pocket5.Profile = sketch10
pocket5.Type = "ThroughAll"
pocket5.Reversed = True
doc.recompute()

fillet = body.newObject("PartDesign::Fillet", "Fillet")
fillet.Base = (pocket5, edges_at(pocket5, [
    (-139.7, -234.95, 2.388),
    (-139.7, 63.5, 2.388),
    (-63.5, 139.7, 2.388),
    (63.5, 139.7, 2.388),
    (139.7, 63.5, 2.388),
    (139.7, -41.275, 2.388),
]))
fillet.Radius = Q("0.188 in")

sketch11 = body.newObject("Sketcher::SketchObject", "Sketch010")
sketch11.AttachmentSupport = (doc.getObject("XY_Plane"), [""])
sketch11.MapMode = "FlatFace"
sketch11.addGeometry(Part.Circle(V(-107.95, -19.05, 0), V(0, 0, 1), 9.525), False)
sketch11.addGeometry(Part.Circle(V(-88.900017, -19.0754, 0), V(0, 0, 1), 2.0193), False)
sketch11.addConstraint(Sketcher.Constraint("Diameter", 0, Q("0.75 in")))
sketch11.addConstraint(Sketcher.Constraint("Diameter", 1, Q("0.159 in")))
sketch11.addConstraint(Sketcher.Constraint("DistanceX", 0, 3, -1, 1, Q("4.25 in")))
sketch11.addConstraint(Sketcher.Constraint("DistanceY", 0, 3, -1, 1, Q("0.75 in")))
sketch11.addConstraint(Sketcher.Constraint("DistanceY", 1, 3, -1, 1, Q("0.751 in")))
sketch11.addConstraint(Sketcher.Constraint("DistanceX", 1, 3, -1, 1, Q("88.900017 mm")))
pocket6 = body.newObject("PartDesign::Pocket", "Pocket005")
pocket6.Profile = sketch11
pocket6.Type = "ThroughAll"
pocket6.Reversed = True

doc.recompute()
